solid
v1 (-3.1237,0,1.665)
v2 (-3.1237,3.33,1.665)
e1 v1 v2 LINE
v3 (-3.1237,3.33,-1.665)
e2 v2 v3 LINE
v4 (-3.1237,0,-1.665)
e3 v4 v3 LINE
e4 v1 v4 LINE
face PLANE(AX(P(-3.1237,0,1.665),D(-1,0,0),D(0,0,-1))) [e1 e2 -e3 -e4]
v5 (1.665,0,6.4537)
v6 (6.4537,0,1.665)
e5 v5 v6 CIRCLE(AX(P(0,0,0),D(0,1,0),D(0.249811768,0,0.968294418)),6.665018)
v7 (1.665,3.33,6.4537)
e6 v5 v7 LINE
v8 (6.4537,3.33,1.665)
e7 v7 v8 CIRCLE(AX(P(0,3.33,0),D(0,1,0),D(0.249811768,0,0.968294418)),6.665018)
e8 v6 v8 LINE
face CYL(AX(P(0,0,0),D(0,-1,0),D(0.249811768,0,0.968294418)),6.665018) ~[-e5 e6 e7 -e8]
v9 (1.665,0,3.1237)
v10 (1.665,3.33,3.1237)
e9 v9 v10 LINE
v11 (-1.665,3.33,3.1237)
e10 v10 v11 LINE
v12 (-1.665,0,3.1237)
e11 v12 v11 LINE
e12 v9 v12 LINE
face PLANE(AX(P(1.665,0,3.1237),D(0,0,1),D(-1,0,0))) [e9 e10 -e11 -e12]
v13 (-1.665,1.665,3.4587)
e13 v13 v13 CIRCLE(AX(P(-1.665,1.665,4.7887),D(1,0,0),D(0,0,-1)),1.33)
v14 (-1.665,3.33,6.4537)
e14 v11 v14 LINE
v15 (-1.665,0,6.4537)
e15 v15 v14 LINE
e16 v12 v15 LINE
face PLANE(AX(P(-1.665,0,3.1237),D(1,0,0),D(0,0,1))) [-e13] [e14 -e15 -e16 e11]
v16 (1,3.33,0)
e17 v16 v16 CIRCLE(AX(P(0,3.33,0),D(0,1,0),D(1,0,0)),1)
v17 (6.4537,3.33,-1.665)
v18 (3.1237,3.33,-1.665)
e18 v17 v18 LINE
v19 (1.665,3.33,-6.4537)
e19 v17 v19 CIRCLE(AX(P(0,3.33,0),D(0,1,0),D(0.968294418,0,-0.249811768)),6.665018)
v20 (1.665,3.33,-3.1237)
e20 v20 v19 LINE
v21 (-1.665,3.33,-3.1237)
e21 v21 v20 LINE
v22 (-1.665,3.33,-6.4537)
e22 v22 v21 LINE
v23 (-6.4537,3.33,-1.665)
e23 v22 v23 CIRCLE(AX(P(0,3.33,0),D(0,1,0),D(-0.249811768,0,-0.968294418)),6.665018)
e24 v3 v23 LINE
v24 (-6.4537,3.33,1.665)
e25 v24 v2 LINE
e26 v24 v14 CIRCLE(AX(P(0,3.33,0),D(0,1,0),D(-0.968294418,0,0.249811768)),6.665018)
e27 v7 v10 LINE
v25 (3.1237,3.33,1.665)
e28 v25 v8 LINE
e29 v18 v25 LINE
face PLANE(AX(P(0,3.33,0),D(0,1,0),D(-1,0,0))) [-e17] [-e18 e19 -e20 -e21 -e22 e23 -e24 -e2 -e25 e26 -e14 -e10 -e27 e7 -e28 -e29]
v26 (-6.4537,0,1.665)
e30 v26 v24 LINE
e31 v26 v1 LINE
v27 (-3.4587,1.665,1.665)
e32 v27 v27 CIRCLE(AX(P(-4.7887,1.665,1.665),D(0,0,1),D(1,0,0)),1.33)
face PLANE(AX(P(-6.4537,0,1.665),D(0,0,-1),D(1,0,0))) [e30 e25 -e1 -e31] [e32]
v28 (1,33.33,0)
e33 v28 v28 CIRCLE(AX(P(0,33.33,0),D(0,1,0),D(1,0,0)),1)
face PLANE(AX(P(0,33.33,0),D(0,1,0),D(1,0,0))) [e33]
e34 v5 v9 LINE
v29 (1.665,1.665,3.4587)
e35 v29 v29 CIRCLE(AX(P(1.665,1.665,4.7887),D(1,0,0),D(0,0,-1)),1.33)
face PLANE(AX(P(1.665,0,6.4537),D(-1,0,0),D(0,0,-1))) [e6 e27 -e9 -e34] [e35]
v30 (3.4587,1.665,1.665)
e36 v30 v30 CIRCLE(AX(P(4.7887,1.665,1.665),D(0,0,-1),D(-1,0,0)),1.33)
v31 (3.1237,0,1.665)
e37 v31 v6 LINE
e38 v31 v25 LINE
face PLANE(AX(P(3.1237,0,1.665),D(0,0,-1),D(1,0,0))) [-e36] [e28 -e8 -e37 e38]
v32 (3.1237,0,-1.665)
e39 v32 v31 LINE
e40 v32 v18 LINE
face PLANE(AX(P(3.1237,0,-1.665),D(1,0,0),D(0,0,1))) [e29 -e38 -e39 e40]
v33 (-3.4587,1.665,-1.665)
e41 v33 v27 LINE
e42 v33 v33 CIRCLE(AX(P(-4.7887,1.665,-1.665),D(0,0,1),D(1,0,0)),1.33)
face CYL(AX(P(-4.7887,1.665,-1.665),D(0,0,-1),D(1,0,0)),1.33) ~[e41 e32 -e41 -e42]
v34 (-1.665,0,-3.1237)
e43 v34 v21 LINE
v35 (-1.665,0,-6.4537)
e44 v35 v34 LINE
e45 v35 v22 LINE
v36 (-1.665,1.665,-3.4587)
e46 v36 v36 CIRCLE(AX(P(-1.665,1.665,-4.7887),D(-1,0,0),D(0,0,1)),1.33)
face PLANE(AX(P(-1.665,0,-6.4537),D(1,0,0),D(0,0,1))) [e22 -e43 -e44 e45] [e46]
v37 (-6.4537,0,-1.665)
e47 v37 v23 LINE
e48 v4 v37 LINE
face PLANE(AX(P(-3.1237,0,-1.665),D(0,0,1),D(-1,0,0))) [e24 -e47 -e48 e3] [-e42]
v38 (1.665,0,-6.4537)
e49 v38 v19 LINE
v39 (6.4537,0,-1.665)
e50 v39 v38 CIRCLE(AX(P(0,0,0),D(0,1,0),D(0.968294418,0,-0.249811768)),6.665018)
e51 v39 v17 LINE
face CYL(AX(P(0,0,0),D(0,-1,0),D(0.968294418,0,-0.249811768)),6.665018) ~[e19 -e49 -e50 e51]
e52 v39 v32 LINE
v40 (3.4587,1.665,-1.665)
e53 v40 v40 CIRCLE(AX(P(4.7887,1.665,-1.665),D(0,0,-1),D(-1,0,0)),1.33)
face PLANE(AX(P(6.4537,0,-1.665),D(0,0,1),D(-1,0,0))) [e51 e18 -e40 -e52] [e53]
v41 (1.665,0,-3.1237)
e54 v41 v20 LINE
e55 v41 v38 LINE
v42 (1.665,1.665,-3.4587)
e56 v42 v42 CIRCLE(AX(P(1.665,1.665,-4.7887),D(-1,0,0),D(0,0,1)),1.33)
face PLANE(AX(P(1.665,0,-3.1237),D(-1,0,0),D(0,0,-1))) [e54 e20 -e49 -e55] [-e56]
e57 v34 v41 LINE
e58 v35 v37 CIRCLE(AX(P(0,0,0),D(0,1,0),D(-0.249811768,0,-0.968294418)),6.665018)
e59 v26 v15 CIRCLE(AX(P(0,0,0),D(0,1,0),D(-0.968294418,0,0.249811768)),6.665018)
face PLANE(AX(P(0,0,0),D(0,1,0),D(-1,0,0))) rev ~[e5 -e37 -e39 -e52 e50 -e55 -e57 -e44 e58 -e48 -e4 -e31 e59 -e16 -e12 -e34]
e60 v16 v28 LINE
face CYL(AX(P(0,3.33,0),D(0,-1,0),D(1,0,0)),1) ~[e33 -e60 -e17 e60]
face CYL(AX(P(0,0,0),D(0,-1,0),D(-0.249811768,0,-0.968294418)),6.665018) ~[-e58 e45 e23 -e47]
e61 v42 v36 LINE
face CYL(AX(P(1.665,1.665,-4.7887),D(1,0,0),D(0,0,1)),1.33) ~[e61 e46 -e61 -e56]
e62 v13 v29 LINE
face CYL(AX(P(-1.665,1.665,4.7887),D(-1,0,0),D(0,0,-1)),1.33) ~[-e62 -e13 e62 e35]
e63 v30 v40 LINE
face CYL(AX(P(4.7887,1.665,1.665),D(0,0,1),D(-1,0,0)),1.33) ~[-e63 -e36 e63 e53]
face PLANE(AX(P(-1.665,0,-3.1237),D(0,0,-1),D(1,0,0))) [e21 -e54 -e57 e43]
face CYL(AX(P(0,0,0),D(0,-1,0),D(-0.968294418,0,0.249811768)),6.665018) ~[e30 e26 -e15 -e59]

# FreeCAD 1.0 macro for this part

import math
import FreeCAD as App
import Part
import Sketcher

V = App.Vector

doc = App.newDocument("Part")
body = doc.addObject("PartDesign::Body", "Body")

sketch1 = doc.addObject("Sketcher::SketchObject", "Sketch")
body.addObject(sketch1)
sketch1.AttachmentSupport = (doc.XZ_Plane, [""])
sketch1.MapMode = "FlatFace"
sketch1.addGeometry([
    Part.LineSegment(V(1.665, 3.1237, 0), V(1.665, 6.4537, 0)),
    Part.ArcOfCircle(Part.Circle(V(0, 0, 0), V(0, 0, 1), 6.665018), math.radians(14.466374), math.radians(75.533626)),
    Part.LineSegment(V(6.4537, 1.665, 0), V(3.1237, 1.665, 0)),
    Part.LineSegment(V(3.1237, 1.665, 0), V(3.1237, -1.665, 0)),
    Part.LineSegment(V(3.1237, -1.665, 0), V(6.4537, -1.665, 0)),
    Part.ArcOfCircle(Part.Circle(V(0, 0, 0), V(0, 0, 1), 6.665018), math.radians(-75.533626), math.radians(-14.466374)),
    Part.LineSegment(V(1.665, -6.4537, 0), V(1.665, -3.1237, 0)),
    Part.LineSegment(V(1.665, -3.1237, 0), V(-1.665, -3.1237, 0)),
    Part.LineSegment(V(-1.665, -3.1237, 0), V(-1.665, -6.4537, 0)),
    Part.ArcOfCircle(Part.Circle(V(0, 0, 0), V(0, 0, 1), 6.665018), math.radians(-165.533626), math.radians(-104.466374)),
    Part.LineSegment(V(-6.4537, -1.665, 0), V(-3.1237, -1.665, 0)),
    Part.LineSegment(V(-3.1237, -1.665, 0), V(-3.1237, 1.665, 0)),
    Part.LineSegment(V(-3.1237, 1.665, 0), V(-6.4537, 1.665, 0)),
    Part.ArcOfCircle(Part.Circle(V(0, 0, 0), V(0, 0, 1), 6.665018), math.radians(104.466374), math.radians(165.533626)),
    Part.LineSegment(V(-1.665, 6.4537, 0), V(-1.665, 3.1237, 0)),
    Part.LineSegment(V(-1.665, 3.1237, 0), V(1.665, 3.1237, 0)),
], False)
sketch1.addConstraint([
    Sketcher.Constraint("Coincident", 0, 2, 1, 2),
    Sketcher.Constraint("Coincident", 1, 1, 2, 1),
    Sketcher.Constraint("Coincident", 2, 2, 3, 1),
    Sketcher.Constraint("Coincident", 3, 2, 4, 1),
    Sketcher.Constraint("Coincident", 4, 2, 5, 2),
    Sketcher.Constraint("Coincident", 5, 1, 6, 1),
    Sketcher.Constraint("Coincident", 6, 2, 7, 1),
    Sketcher.Constraint("Coincident", 7, 2, 8, 1),
    Sketcher.Constraint("Coincident", 8, 2, 9, 2),
    Sketcher.Constraint("Coincident", 9, 1, 10, 1),
    Sketcher.Constraint("Coincident", 10, 2, 11, 1),
    Sketcher.Constraint("Coincident", 11, 2, 12, 1),
    Sketcher.Constraint("Coincident", 12, 2, 13, 2),
    Sketcher.Constraint("Coincident", 13, 1, 14, 1),
    Sketcher.Constraint("Coincident", 14, 2, 15, 1),
    Sketcher.Constraint("Coincident", 15, 2, 0, 1),
    Sketcher.Constraint("Vertical", 0),
    Sketcher.Constraint("Horizontal", 2),
    Sketcher.Constraint("Vertical", 3),
    Sketcher.Constraint("Horizontal", 4),
    Sketcher.Constraint("Vertical", 6),
    Sketcher.Constraint("Horizontal", 7),
    Sketcher.Constraint("Vertical", 8),
    Sketcher.Constraint("Horizontal", 10),
    Sketcher.Constraint("Vertical", 11),
    Sketcher.Constraint("Horizontal", 12),
    Sketcher.Constraint("Vertical", 14),
    Sketcher.Constraint("Horizontal", 15),
    Sketcher.Constraint("Coincident", 1, 3, -1, 1),
    Sketcher.Constraint("Coincident", 5, 3, -1, 1),
    Sketcher.Constraint("Coincident", 9, 3, -1, 1),
    Sketcher.Constraint("Coincident", 13, 3, -1, 1),
    Sketcher.Constraint("Equal", 1, 5),
    Sketcher.Constraint("Equal", 5, 9),
    Sketcher.Constraint("Equal", 9, 13),
    Sketcher.Constraint("Symmetric", 2, 2, 10, 2, -1, 1),
    Sketcher.Constraint("Symmetric", 6, 2, 14, 2, -1, 1),
    Sketcher.Constraint("Horizontal", 5, 1, 8, 2),
    Sketcher.Constraint("Horizontal", 4, 2, 9, 1),
    Sketcher.Constraint("Horizontal", 2, 2, 11, 2),
    Sketcher.Constraint("Horizontal", 0, 2, 13, 1),
    Sketcher.Constraint("Equal", 4, 7),
    Sketcher.Constraint("Equal", 15, 0),
    Sketcher.Constraint("Equal", 0, 3),
    Sketcher.Constraint("DistanceX", 2, 2, 2, 1, 3.33),
    Sketcher.Constraint("Radius", 1, 6.665),
])
pad1 = doc.addObject("PartDesign::Pad", "Pad")
body.addObject(pad1)
pad1.Profile = sketch1
pad1.Length = 3.33
pad1.Reversed = True

sketch2 = doc.addObject("Sketcher::SketchObject", "Sketch001")
body.addObject(sketch2)
sketch2.AttachmentSupport = (doc.YZ_Plane, [""])
sketch2.MapMode = "FlatFace"
sketch2.AttachmentOffset = App.Placement(V(0, 0, -1.665), App.Rotation())
sketch2.addGeometry(Part.Circle(V(1.665, 4.7887, 0), V(0, 0, 1), 1.33), False)
sketch2.addConstraint([
    Sketcher.Constraint("Diameter", 0, 2.66),
    Sketcher.Constraint("DistanceX", -1, 1, 0, 3, 1.665),
    Sketcher.Constraint("DistanceY", -1, 1, 0, 3, 4.7887),
])
pad2 = doc.addObject("PartDesign::Pad", "Pad001")
body.addObject(pad2)
pad2.Profile = sketch2
pad2.Length = 3.33
doc.recompute()

polarpattern = doc.addObject("PartDesign::PolarPattern", "PolarPattern")
body.addObject(polarpattern)
polarpattern.Originals = [pad2]
polarpattern.Axis = (doc.Y_Axis, [""])
polarpattern.Angle = 360
polarpattern.Occurrences = 4
body.Tip = polarpattern

sketch3 = doc.addObject("Sketcher::SketchObject", "Sketch002")
body.addObject(sketch3)
sketch3.AttachmentSupport = (doc.XZ_Plane, [""])
sketch3.MapMode = "FlatFace"
sketch3.AttachmentOffset = App.Placement(V(0, 0, -3.33), App.Rotation())
sketch3.addGeometry(Part.Circle(V(0, 0, 0), V(0, 0, 1), 1), False)
sketch3.addConstraint([
    Sketcher.Constraint("Coincident", 0, 3, -1, 1),
    Sketcher.Constraint("Diameter", 0, 2.0),
])
pad3 = doc.addObject("PartDesign::Pad", "Pad002")
body.addObject(pad3)
pad3.Profile = sketch3
pad3.Length = 30
pad3.Reversed = True

doc.recompute()
